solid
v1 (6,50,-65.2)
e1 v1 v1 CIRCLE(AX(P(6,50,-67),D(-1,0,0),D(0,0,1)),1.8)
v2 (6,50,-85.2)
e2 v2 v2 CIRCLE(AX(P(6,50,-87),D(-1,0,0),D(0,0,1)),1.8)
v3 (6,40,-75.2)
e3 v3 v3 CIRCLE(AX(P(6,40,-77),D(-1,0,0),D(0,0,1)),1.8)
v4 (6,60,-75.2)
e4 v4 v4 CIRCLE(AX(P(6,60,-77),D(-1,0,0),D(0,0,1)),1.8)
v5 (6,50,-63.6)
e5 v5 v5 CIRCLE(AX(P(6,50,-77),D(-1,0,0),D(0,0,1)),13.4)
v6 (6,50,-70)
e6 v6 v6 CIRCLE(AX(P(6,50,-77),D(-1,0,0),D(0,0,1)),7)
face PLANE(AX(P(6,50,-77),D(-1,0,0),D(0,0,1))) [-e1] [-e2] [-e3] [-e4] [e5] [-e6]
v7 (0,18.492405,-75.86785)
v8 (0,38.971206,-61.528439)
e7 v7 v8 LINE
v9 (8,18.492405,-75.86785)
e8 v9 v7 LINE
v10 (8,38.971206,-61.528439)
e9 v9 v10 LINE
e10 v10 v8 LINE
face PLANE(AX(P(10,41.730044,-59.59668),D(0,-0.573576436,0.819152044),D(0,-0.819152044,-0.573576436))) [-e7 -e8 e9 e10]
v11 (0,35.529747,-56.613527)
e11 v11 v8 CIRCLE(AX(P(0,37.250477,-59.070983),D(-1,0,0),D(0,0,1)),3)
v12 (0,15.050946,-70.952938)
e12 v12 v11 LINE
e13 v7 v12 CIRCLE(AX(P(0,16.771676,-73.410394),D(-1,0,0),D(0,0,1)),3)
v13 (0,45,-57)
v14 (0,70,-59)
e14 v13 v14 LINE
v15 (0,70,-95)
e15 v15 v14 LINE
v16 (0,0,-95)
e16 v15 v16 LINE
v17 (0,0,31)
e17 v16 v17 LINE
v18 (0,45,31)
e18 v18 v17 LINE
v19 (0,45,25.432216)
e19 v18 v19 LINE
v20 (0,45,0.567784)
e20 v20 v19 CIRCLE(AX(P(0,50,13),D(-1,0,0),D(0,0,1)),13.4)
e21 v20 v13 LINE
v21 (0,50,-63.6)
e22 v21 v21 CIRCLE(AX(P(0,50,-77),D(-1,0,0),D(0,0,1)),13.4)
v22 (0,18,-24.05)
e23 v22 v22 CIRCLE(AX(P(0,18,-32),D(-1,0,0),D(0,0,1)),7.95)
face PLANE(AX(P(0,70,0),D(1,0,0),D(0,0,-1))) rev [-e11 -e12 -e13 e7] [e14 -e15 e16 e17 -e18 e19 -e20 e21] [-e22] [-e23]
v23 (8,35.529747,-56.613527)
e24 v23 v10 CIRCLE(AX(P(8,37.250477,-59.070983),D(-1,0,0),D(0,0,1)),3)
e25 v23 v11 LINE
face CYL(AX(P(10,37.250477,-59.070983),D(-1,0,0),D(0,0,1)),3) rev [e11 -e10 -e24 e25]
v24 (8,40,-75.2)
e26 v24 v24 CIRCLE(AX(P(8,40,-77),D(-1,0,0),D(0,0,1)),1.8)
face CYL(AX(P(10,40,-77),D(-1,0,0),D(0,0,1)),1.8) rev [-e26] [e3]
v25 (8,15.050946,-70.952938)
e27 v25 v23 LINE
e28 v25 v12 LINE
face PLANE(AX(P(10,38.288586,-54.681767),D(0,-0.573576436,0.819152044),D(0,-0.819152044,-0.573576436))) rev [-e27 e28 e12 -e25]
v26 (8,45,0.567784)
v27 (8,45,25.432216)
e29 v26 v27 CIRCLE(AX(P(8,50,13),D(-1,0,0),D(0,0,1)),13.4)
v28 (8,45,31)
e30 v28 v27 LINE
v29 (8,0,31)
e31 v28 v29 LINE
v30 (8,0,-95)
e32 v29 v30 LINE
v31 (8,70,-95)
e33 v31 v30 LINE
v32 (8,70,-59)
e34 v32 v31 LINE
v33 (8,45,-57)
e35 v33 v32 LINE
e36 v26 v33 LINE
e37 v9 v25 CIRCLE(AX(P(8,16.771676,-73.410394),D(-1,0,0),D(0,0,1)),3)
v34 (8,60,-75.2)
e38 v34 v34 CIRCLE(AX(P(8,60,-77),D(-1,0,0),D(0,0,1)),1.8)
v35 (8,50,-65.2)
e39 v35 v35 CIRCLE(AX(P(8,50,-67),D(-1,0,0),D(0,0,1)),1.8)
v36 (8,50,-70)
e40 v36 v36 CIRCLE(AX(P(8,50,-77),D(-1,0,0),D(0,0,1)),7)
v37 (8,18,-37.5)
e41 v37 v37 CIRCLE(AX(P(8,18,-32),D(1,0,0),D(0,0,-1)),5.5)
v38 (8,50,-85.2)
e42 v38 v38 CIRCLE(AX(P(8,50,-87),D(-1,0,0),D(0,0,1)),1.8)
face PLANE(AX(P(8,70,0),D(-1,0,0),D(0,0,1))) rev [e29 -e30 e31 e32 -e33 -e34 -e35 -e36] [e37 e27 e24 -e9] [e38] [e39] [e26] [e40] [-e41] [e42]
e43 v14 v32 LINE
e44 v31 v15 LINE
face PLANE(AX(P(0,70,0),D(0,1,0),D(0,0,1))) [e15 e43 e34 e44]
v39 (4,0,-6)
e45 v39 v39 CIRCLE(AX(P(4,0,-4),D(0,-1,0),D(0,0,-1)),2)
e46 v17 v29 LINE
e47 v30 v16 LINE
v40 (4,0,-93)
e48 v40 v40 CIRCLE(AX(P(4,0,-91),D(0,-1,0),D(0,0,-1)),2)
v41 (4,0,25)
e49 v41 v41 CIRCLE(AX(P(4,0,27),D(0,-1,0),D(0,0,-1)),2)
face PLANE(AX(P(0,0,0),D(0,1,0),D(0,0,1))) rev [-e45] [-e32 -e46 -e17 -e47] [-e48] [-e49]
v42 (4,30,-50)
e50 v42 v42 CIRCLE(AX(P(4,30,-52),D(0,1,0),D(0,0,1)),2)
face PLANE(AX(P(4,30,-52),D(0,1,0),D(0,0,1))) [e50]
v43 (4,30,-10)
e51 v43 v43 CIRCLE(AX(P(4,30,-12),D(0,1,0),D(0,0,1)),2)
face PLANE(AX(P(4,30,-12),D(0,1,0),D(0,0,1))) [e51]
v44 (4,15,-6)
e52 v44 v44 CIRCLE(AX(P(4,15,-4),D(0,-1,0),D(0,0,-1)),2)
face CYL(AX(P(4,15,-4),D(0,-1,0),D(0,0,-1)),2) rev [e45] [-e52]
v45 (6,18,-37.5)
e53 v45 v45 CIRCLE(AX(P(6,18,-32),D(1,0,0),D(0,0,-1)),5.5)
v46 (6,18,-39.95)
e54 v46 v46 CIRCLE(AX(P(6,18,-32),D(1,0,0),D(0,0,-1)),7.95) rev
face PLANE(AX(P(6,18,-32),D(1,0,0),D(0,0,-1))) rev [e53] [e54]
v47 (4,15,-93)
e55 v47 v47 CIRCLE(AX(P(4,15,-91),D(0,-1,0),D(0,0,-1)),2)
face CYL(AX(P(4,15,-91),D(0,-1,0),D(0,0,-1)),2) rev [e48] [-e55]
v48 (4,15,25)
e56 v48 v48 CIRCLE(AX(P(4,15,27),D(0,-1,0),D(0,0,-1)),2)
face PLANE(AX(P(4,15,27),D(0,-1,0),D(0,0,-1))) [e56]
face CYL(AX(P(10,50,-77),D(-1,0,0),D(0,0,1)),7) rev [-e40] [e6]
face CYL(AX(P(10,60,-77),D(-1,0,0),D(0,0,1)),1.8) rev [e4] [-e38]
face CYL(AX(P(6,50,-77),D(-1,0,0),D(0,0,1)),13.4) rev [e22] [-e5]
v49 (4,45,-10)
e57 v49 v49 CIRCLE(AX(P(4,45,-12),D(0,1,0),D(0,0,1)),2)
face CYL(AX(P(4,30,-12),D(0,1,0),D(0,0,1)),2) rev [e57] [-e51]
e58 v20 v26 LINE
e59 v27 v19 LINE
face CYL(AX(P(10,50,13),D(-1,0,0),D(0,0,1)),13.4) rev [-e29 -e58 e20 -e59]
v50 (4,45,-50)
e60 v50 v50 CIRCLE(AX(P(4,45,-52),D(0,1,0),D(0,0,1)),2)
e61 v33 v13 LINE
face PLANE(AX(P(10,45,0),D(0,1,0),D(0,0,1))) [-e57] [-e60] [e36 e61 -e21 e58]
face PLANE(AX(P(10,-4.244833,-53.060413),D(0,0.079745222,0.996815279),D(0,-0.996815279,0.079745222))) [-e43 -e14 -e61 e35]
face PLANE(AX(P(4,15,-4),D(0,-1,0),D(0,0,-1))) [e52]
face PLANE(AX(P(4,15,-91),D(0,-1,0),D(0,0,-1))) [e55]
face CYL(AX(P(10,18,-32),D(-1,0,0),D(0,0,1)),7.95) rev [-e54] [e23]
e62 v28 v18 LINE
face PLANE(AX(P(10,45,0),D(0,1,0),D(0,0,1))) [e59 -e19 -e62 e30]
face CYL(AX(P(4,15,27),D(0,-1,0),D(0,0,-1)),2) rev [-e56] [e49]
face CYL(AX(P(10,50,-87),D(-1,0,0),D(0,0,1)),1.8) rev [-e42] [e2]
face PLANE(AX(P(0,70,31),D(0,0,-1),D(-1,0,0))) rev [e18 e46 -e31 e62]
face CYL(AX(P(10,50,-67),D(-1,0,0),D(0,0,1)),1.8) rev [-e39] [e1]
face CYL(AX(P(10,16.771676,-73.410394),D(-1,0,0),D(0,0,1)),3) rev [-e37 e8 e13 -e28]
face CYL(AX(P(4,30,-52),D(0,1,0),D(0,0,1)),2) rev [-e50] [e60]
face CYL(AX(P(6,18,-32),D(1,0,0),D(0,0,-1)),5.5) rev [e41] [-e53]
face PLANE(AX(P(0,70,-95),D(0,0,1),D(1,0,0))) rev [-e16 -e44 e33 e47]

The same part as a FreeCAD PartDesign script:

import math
import FreeCAD as App
import Part
import Sketcher

V = App.Vector
Q = App.Units.Quantity

doc = App.newDocument("Part")
params = doc.addObject("Spreadsheet::Sheet", "Params")
for row, (alias, value) in enumerate([
    ("sketch1_width", "8 mm"),
    ("sketch1_height", "126 mm"),
    ("pad1_length", "70 mm"),
    ("sketch2_diameter", "15.9 mm"),
    ("pocket1_length", "10 mm"),
    ("sketch3_diameter", "26.8 mm"),
    ("pocket2_length", "6 mm"),
    ("sketch4_diameter", "14 mm"),
    ("sketch4_diameter2", "3.6 mm"),
    ("pocket3_length", "10 mm"),
    ("sketch5_diameter", "4 mm"),
    ("pocket4_length", "15 mm"),
    ("sketch6_radius", "3 mm"),
    ("sketch6_length", "25 mm"),
    ("pocket5_length", "10 mm"),
    ("sketch7_diameter", "26.8 mm"),
    ("pocket6_length", "10 mm"),
    ("sketch8_radius", "13.4 mm"),
    ("sketch8_width", "25 mm"),
    ("sketch8_height", "90 mm"),
    ("pocket7_length", "10 mm"),
    ("sketch9_diameter", "11 mm"),
    ("sketch9_diameter2", "16.2 mm"),
    ("pad2_length", "2 mm"),
    ("sketch10_diameter", "4 mm"),
    ("pocket8_length", "15 mm"),
], start=1):
    params.set(f"A{row}", alias)
    params.set(f"B{row}", "=" + value)
    params.setAlias(f"B{row}", alias)

body = doc.addObject("PartDesign::Body", "Body")

sketch1 = doc.addObject("Sketcher::SketchObject", "Sketch")
body.addObject(sketch1)
sketch1.AttachmentSupport = (doc.XZ_Plane, [""])
sketch1.MapMode = "FlatFace"
sketch1.addGeometry([
    Part.LineSegment(V(0, -95, 0), V(0, 31, 0)),
    Part.LineSegment(V(0, 31, 0), V(8, 31, 0)),
    Part.LineSegment(V(8, 31, 0), V(8, -95, 0)),
    Part.LineSegment(V(8, -95, 0), V(0, -95, 0)),
], False)
sketch1.addConstraint([
    Sketcher.Constraint("Coincident", 0, 2, 1, 1),
    Sketcher.Constraint("Coincident", 1, 2, 2, 1),
    Sketcher.Constraint("Coincident", 2, 2, 3, 1),
    Sketcher.Constraint("Coincident", 3, 2, 0, 1),
    Sketcher.Constraint("Vertical", 0),
    Sketcher.Constraint("Horizontal", 1),
    Sketcher.Constraint("Vertical", 2),
    Sketcher.Constraint("Horizontal", 3),
    Sketcher.Constraint("PointOnObject", 0, 2, -2),
    Sketcher.Constraint("DistanceX", 1, 1, 1, 2, Q("8 mm")),
    Sketcher.Constraint("DistanceY", 0, 1, 0, 2, Q("126 mm")),
    Sketcher.Constraint("DistanceY", -1, 1, 0, 2, Q("31 mm")),
])
sketch1.setExpression("Constraints[9]", "Params.sketch1_width")
sketch1.setExpression("Constraints[10]", "Params.sketch1_height")
pad1 = doc.addObject("PartDesign::Pad", "Pad")
body.addObject(pad1)
pad1.Profile = sketch1
pad1.setExpression("Length", "Params.pad1_length")
pad1.Reversed = True

sketch2 = doc.addObject("Sketcher::SketchObject", "Sketch001")
body.addObject(sketch2)
sketch2.AttachmentSupport = (doc.YZ_Plane, [""])
sketch2.MapMode = "FlatFace"
sketch2.addGeometry(Part.Circle(V(18, -32, 0), V(0, 0, 1), 8), False)
sketch2.addConstraint([
    Sketcher.Constraint("Diameter", 0, Q("15.9 mm")),
    Sketcher.Constraint("DistanceX", -1, 1, 0, 3, Q("18 mm")),
    Sketcher.Constraint("DistanceY", 0, 3, -1, 1, Q("32 mm")),
])
sketch2.setExpression("Constraints[0]", "Params.sketch2_diameter")
pocket1 = doc.addObject("PartDesign::Pocket", "Pocket")
body.addObject(pocket1)
pocket1.Profile = sketch2
pocket1.setExpression("Length", "Params.pocket1_length")
pocket1.Reversed = True

sketch3 = doc.addObject("Sketcher::SketchObject", "Sketch002")
body.addObject(sketch3)
sketch3.AttachmentSupport = (doc.YZ_Plane, [""])
sketch3.MapMode = "FlatFace"
sketch3.addGeometry(Part.Circle(V(50, -77, 0), V(0, 0, 1), 13), False)
sketch3.addConstraint([
    Sketcher.Constraint("Diameter", 0, Q("26.8 mm")),
    Sketcher.Constraint("DistanceX", -1, 1, 0, 3, Q("50 mm")),
    Sketcher.Constraint("DistanceY", 0, 3, -1, 1, Q("77 mm")),
])
sketch3.setExpression("Constraints[0]", "Params.sketch3_diameter")
pocket2 = doc.addObject("PartDesign::Pocket", "Pocket001")
body.addObject(pocket2)
pocket2.Profile = sketch3
pocket2.setExpression("Length", "Params.pocket2_length")
pocket2.Reversed = True

sketch4 = doc.addObject("Sketcher::SketchObject", "Sketch003")
body.addObject(sketch4)
sketch4.AttachmentSupport = (doc.YZ_Plane, [""])
sketch4.MapMode = "FlatFace"
sketch4.addGeometry([
    Part.Circle(V(60, -77, 0), V(0, 0, 1), 1.8),
    Part.Circle(V(50, -67, 0), V(0, 0, 1), 1.8),
    Part.Circle(V(40, -77, 0), V(0, 0, 1), 1.8),
    Part.Circle(V(50, -87, 0), V(0, 0, 1), 1.8),
    Part.Circle(V(50, -77, 0), V(0, 0, 1), 7),
], False)
sketch4.addConstraint([
    Sketcher.Constraint("Equal", 0, 1),
    Sketcher.Constraint("Equal", 1, 2),
    Sketcher.Constraint("Equal", 2, 3),
    Sketcher.Constraint("Horizontal", 0, 3, 2, 3),
    Sketcher.Constraint("Horizontal", 2, 3, 4, 3),
    Sketcher.Constraint("Vertical", 1, 3, 3, 3),
    Sketcher.Constraint("Vertical", 3, 3, 4, 3),
    Sketcher.Constraint("Diameter", 4, Q("14 mm")),
    Sketcher.Constraint("Diameter", 0, Q("3.6 mm")),
    Sketcher.Constraint("DistanceX", -1, 1, 0, 3, Q("60 mm")),
    Sketcher.Constraint("DistanceY", 0, 3, -1, 1, Q("77 mm")),
    Sketcher.Constraint("DistanceX", -1, 1, 1, 3, Q("50 mm")),
    Sketcher.Constraint("DistanceY", 1, 3, -1, 1, Q("67 mm")),
    Sketcher.Constraint("DistanceX", -1, 1, 2, 3, Q("40 mm")),
    Sketcher.Constraint("DistanceY", 3, 3, -1, 1, Q("87 mm")),
])
sketch4.setExpression("Constraints[7]", "Params.sketch4_diameter")
sketch4.setExpression("Constraints[8]", "Params.sketch4_diameter2")
pocket3 = doc.addObject("PartDesign::Pocket", "Pocket002")
body.addObject(pocket3)
pocket3.Profile = sketch4
pocket3.setExpression("Length", "Params.pocket3_length")
pocket3.Reversed = True

sketch5 = doc.addObject("Sketcher::SketchObject", "Sketch004")
body.addObject(sketch5)
sketch5.AttachmentSupport = (doc.XZ_Plane, [""])
sketch5.MapMode = "FlatFace"
sketch5.addGeometry([
    Part.Circle(V(4, -91, 0), V(0, 0, 1), 2),
    Part.Circle(V(4, -4, 0), V(0, 0, 1), 2),
    Part.Circle(V(4, 27, 0), V(0, 0, 1), 2),
], False)
sketch5.addConstraint([
    Sketcher.Constraint("Equal", 0, 1),
    Sketcher.Constraint("Equal", 1, 2),
    Sketcher.Constraint("Vertical", 0, 3, 1, 3),
    Sketcher.Constraint("Vertical", 1, 3, 2, 3),
    Sketcher.Constraint("Diameter", 0, Q("4 mm")),
    Sketcher.Constraint("DistanceX", -1, 1, 0, 3, Q("4 mm")),
    Sketcher.Constraint("DistanceY", 0, 3, -1, 1, Q("91 mm")),
    Sketcher.Constraint("DistanceY", 1, 3, -1, 1, Q("4 mm")),
    Sketcher.Constraint("DistanceY", -1, 1, 2, 3, Q("27 mm")),
])
sketch5.setExpression("Constraints[4]", "Params.sketch5_diameter")
pocket4 = doc.addObject("PartDesign::Pocket", "Pocket003")
body.addObject(pocket4)
pocket4.Profile = sketch5
pocket4.setExpression("Length", "Params.pocket4_length")

sketch6 = doc.addObject("Sketcher::SketchObject", "Sketch005")
body.addObject(sketch6)
sketch6.AttachmentSupport = (doc.YZ_Plane, [""])
sketch6.MapMode = "FlatFace"
sketch6.addGeometry([
    Part.LineSegment(V(39, -61.5, 0), V(18.5, -75.9, 0)),
    Part.ArcOfCircle(Part.Circle(V(16.8, -73.4, 0), V(0, 0, 1), 3), math.radians(125), math.radians(305)),
    Part.LineSegment(V(15.1, -71, 0), V(35.5, -56.6, 0)),
    Part.ArcOfCircle(Part.Circle(V(37.3, -59.1, 0), V(0, 0, 1), 3), math.radians(-55), math.radians(125)),
], False)
sketch6.addConstraint([
    Sketcher.Constraint("Tangent", 0, 2, 1, 2),
    Sketcher.Constraint("Tangent", 1, 1, 2, 1),
    Sketcher.Constraint("Tangent", 2, 2, 3, 2),
    Sketcher.Constraint("Tangent", 3, 1, 0, 1),
    Sketcher.Constraint("Equal", 1, 3),
    Sketcher.Constraint("Radius", 1, Q("3 mm")),
    Sketcher.Constraint("Angle", 0, Q("-145 deg")),
    Sketcher.Constraint("Distance", 0, Q("25 mm")),
    Sketcher.Constraint("DistanceY", 0, 2, -1, 1, Q("75.86785 mm")),
    Sketcher.Constraint("DistanceX", -1, 1, 1, 3, Q("16.771676 mm")),
])
sketch6.setExpression("Constraints[5]", "Params.sketch6_radius")
sketch6.setExpression("Constraints[7]", "Params.sketch6_length")
pocket5 = doc.addObject("PartDesign::Pocket", "Pocket004")
body.addObject(pocket5)
pocket5.Profile = sketch6
pocket5.setExpression("Length", "Params.pocket5_length")
pocket5.Reversed = True

sketch7 = doc.addObject("Sketcher::SketchObject", "Sketch006")
body.addObject(sketch7)
sketch7.AttachmentSupport = (doc.YZ_Plane, [""])
sketch7.MapMode = "FlatFace"
sketch7.addGeometry(Part.Circle(V(50, 13, 0), V(0, 0, 1), 13), False)
sketch7.addConstraint([
    Sketcher.Constraint("Diameter", 0, Q("26.8 mm")),
    Sketcher.Constraint("DistanceX", -1, 1, 0, 3, Q("50 mm")),
    Sketcher.Constraint("DistanceY", -1, 1, 0, 3, Q("13 mm")),
])
sketch7.setExpression("Constraints[0]", "Params.sketch7_diameter")
pocket6 = doc.addObject("PartDesign::Pocket", "Pocket005")
body.addObject(pocket6)
pocket6.Profile = sketch7
pocket6.setExpression("Length", "Params.pocket6_length")
pocket6.Reversed = True

sketch8 = doc.addObject("Sketcher::SketchObject", "Sketch007")
body.addObject(sketch8)
sketch8.AttachmentSupport = (doc.YZ_Plane, [""])
sketch8.MapMode = "FlatFace"
sketch8.addGeometry([
    Part.ArcOfCircle(Part.Circle(V(50, 13, 0), V(0, 0, 1), 13), math.radians(112), math.radians(248)),
    Part.LineSegment(V(45, 25, 0), V(45, 31, 0)),
    Part.LineSegment(V(45, 31, 0), V(70, 31, 0)),
    Part.LineSegment(V(70, 31, 0), V(70, -59, 0)),
    Part.LineSegment(V(70, -59, 0), V(45, -57, 0)),
    Part.LineSegment(V(45, -57, 0), V(45, 1, 0)),
], False)
sketch8.addConstraint([
    Sketcher.Constraint("Coincident", 0, 1, 1, 1),
    Sketcher.Constraint("Coincident", 1, 2, 2, 1),
    Sketcher.Constraint("Coincident", 2, 2, 3, 1),
    Sketcher.Constraint("Coincident", 3, 2, 4, 1),
    Sketcher.Constraint("Coincident", 4, 2, 5, 1),
    Sketcher.Constraint("Coincident", 5, 2, 0, 2),
    Sketcher.Constraint("Vertical", 1),
    Sketcher.Constraint("Horizontal", 2),
    Sketcher.Constraint("Vertical", 3),
    Sketcher.Constraint("Vertical", 5),
    Sketcher.Constraint("Vertical", 1, 2, 4, 2),
    Sketcher.Constraint("Radius", 0, Q("13.4 mm")),
    Sketcher.Constraint("DistanceX", 2, 1, 2, 2, Q("25 mm")),
    Sketcher.Constraint("DistanceY", 3, 2, 3, 1, Q("90 mm")),
    Sketcher.Constraint("DistanceX", -1, 1, 0, 3, Q("50 mm")),
    Sketcher.Constraint("DistanceY", -1, 1, 0, 3, Q("13 mm")),
    Sketcher.Constraint("DistanceX", -1, 1, 0, 1, Q("45 mm")),
    Sketcher.Constraint("DistanceY", -1, 1, 1, 2, Q("31 mm")),
    Sketcher.Constraint("DistanceY", 4, 2, -1, 1, Q("57 mm")),
])
sketch8.setExpression("Constraints[11]", "Params.sketch8_radius")
sketch8.setExpression("Constraints[12]", "Params.sketch8_width")
sketch8.setExpression("Constraints[13]", "Params.sketch8_height")
pocket7 = doc.addObject("PartDesign::Pocket", "Pocket006")
body.addObject(pocket7)
pocket7.Profile = sketch8
pocket7.setExpression("Length", "Params.pocket7_length")
pocket7.Reversed = True

sketch9 = doc.addObject("Sketcher::SketchObject", "Sketch008")
body.addObject(sketch9)
sketch9.AttachmentSupport = (doc.YZ_Plane, [""])
sketch9.MapMode = "FlatFace"
sketch9.AttachmentOffset = App.Placement(V(0, 0, 8), App.Rotation())
sketch9.addGeometry([
    Part.Circle(V(18, -32, 0), V(0, 0, 1), 8),
    Part.Circle(V(18, -32, 0), V(0, 0, 1), 6),
], False)
sketch9.addConstraint([
    Sketcher.Constraint("Coincident", 1, 3, 0, 3),
    Sketcher.Constraint("Diameter", 1, Q("11 mm")),
    Sketcher.Constraint("Diameter", 0, Q("16.2 mm")),
    Sketcher.Constraint("DistanceX", -1, 1, 0, 3, Q("18 mm")),
    Sketcher.Constraint("DistanceY", 0, 3, -1, 1, Q("32 mm")),
])
sketch9.setExpression("Constraints[1]", "Params.sketch9_diameter")
sketch9.setExpression("Constraints[2]", "Params.sketch9_diameter2")
pad2 = doc.addObject("PartDesign::Pad", "Pad001")
body.addObject(pad2)
pad2.Profile = sketch9
pad2.setExpression("Length", "Params.pad2_length")
pad2.Reversed = True

sketch10 = doc.addObject("Sketcher::SketchObject", "Sketch009")
body.addObject(sketch10)
sketch10.AttachmentSupport = (doc.XZ_Plane, [""])
sketch10.MapMode = "FlatFace"
sketch10.AttachmentOffset = App.Placement(V(0, 0, -45), App.Rotation())
sketch10.addGeometry([
    Part.Circle(V(4, -12, 0), V(0, 0, 1), 2),
    Part.Circle(V(4, -52, 0), V(0, 0, 1), 2),
], False)
sketch10.addConstraint([
    Sketcher.Constraint("Equal", 0, 1),
    Sketcher.Constraint("Vertical", 0, 3, 1, 3),
    Sketcher.Constraint("Diameter", 0, Q("4 mm")),
    Sketcher.Constraint("DistanceX", -1, 1, 0, 3, Q("4 mm")),
    Sketcher.Constraint("DistanceY", 0, 3, -1, 1, Q("12 mm")),
    Sketcher.Constraint("DistanceY", 1, 3, -1, 1, Q("52 mm")),
])
sketch10.setExpression("Constraints[2]", "Params.sketch10_diameter")
pocket8 = doc.addObject("PartDesign::Pocket", "Pocket007")
body.addObject(pocket8)
pocket8.Profile = sketch10
pocket8.setExpression("Length", "Params.pocket8_length")
pocket8.Reversed = True

doc.recompute()
